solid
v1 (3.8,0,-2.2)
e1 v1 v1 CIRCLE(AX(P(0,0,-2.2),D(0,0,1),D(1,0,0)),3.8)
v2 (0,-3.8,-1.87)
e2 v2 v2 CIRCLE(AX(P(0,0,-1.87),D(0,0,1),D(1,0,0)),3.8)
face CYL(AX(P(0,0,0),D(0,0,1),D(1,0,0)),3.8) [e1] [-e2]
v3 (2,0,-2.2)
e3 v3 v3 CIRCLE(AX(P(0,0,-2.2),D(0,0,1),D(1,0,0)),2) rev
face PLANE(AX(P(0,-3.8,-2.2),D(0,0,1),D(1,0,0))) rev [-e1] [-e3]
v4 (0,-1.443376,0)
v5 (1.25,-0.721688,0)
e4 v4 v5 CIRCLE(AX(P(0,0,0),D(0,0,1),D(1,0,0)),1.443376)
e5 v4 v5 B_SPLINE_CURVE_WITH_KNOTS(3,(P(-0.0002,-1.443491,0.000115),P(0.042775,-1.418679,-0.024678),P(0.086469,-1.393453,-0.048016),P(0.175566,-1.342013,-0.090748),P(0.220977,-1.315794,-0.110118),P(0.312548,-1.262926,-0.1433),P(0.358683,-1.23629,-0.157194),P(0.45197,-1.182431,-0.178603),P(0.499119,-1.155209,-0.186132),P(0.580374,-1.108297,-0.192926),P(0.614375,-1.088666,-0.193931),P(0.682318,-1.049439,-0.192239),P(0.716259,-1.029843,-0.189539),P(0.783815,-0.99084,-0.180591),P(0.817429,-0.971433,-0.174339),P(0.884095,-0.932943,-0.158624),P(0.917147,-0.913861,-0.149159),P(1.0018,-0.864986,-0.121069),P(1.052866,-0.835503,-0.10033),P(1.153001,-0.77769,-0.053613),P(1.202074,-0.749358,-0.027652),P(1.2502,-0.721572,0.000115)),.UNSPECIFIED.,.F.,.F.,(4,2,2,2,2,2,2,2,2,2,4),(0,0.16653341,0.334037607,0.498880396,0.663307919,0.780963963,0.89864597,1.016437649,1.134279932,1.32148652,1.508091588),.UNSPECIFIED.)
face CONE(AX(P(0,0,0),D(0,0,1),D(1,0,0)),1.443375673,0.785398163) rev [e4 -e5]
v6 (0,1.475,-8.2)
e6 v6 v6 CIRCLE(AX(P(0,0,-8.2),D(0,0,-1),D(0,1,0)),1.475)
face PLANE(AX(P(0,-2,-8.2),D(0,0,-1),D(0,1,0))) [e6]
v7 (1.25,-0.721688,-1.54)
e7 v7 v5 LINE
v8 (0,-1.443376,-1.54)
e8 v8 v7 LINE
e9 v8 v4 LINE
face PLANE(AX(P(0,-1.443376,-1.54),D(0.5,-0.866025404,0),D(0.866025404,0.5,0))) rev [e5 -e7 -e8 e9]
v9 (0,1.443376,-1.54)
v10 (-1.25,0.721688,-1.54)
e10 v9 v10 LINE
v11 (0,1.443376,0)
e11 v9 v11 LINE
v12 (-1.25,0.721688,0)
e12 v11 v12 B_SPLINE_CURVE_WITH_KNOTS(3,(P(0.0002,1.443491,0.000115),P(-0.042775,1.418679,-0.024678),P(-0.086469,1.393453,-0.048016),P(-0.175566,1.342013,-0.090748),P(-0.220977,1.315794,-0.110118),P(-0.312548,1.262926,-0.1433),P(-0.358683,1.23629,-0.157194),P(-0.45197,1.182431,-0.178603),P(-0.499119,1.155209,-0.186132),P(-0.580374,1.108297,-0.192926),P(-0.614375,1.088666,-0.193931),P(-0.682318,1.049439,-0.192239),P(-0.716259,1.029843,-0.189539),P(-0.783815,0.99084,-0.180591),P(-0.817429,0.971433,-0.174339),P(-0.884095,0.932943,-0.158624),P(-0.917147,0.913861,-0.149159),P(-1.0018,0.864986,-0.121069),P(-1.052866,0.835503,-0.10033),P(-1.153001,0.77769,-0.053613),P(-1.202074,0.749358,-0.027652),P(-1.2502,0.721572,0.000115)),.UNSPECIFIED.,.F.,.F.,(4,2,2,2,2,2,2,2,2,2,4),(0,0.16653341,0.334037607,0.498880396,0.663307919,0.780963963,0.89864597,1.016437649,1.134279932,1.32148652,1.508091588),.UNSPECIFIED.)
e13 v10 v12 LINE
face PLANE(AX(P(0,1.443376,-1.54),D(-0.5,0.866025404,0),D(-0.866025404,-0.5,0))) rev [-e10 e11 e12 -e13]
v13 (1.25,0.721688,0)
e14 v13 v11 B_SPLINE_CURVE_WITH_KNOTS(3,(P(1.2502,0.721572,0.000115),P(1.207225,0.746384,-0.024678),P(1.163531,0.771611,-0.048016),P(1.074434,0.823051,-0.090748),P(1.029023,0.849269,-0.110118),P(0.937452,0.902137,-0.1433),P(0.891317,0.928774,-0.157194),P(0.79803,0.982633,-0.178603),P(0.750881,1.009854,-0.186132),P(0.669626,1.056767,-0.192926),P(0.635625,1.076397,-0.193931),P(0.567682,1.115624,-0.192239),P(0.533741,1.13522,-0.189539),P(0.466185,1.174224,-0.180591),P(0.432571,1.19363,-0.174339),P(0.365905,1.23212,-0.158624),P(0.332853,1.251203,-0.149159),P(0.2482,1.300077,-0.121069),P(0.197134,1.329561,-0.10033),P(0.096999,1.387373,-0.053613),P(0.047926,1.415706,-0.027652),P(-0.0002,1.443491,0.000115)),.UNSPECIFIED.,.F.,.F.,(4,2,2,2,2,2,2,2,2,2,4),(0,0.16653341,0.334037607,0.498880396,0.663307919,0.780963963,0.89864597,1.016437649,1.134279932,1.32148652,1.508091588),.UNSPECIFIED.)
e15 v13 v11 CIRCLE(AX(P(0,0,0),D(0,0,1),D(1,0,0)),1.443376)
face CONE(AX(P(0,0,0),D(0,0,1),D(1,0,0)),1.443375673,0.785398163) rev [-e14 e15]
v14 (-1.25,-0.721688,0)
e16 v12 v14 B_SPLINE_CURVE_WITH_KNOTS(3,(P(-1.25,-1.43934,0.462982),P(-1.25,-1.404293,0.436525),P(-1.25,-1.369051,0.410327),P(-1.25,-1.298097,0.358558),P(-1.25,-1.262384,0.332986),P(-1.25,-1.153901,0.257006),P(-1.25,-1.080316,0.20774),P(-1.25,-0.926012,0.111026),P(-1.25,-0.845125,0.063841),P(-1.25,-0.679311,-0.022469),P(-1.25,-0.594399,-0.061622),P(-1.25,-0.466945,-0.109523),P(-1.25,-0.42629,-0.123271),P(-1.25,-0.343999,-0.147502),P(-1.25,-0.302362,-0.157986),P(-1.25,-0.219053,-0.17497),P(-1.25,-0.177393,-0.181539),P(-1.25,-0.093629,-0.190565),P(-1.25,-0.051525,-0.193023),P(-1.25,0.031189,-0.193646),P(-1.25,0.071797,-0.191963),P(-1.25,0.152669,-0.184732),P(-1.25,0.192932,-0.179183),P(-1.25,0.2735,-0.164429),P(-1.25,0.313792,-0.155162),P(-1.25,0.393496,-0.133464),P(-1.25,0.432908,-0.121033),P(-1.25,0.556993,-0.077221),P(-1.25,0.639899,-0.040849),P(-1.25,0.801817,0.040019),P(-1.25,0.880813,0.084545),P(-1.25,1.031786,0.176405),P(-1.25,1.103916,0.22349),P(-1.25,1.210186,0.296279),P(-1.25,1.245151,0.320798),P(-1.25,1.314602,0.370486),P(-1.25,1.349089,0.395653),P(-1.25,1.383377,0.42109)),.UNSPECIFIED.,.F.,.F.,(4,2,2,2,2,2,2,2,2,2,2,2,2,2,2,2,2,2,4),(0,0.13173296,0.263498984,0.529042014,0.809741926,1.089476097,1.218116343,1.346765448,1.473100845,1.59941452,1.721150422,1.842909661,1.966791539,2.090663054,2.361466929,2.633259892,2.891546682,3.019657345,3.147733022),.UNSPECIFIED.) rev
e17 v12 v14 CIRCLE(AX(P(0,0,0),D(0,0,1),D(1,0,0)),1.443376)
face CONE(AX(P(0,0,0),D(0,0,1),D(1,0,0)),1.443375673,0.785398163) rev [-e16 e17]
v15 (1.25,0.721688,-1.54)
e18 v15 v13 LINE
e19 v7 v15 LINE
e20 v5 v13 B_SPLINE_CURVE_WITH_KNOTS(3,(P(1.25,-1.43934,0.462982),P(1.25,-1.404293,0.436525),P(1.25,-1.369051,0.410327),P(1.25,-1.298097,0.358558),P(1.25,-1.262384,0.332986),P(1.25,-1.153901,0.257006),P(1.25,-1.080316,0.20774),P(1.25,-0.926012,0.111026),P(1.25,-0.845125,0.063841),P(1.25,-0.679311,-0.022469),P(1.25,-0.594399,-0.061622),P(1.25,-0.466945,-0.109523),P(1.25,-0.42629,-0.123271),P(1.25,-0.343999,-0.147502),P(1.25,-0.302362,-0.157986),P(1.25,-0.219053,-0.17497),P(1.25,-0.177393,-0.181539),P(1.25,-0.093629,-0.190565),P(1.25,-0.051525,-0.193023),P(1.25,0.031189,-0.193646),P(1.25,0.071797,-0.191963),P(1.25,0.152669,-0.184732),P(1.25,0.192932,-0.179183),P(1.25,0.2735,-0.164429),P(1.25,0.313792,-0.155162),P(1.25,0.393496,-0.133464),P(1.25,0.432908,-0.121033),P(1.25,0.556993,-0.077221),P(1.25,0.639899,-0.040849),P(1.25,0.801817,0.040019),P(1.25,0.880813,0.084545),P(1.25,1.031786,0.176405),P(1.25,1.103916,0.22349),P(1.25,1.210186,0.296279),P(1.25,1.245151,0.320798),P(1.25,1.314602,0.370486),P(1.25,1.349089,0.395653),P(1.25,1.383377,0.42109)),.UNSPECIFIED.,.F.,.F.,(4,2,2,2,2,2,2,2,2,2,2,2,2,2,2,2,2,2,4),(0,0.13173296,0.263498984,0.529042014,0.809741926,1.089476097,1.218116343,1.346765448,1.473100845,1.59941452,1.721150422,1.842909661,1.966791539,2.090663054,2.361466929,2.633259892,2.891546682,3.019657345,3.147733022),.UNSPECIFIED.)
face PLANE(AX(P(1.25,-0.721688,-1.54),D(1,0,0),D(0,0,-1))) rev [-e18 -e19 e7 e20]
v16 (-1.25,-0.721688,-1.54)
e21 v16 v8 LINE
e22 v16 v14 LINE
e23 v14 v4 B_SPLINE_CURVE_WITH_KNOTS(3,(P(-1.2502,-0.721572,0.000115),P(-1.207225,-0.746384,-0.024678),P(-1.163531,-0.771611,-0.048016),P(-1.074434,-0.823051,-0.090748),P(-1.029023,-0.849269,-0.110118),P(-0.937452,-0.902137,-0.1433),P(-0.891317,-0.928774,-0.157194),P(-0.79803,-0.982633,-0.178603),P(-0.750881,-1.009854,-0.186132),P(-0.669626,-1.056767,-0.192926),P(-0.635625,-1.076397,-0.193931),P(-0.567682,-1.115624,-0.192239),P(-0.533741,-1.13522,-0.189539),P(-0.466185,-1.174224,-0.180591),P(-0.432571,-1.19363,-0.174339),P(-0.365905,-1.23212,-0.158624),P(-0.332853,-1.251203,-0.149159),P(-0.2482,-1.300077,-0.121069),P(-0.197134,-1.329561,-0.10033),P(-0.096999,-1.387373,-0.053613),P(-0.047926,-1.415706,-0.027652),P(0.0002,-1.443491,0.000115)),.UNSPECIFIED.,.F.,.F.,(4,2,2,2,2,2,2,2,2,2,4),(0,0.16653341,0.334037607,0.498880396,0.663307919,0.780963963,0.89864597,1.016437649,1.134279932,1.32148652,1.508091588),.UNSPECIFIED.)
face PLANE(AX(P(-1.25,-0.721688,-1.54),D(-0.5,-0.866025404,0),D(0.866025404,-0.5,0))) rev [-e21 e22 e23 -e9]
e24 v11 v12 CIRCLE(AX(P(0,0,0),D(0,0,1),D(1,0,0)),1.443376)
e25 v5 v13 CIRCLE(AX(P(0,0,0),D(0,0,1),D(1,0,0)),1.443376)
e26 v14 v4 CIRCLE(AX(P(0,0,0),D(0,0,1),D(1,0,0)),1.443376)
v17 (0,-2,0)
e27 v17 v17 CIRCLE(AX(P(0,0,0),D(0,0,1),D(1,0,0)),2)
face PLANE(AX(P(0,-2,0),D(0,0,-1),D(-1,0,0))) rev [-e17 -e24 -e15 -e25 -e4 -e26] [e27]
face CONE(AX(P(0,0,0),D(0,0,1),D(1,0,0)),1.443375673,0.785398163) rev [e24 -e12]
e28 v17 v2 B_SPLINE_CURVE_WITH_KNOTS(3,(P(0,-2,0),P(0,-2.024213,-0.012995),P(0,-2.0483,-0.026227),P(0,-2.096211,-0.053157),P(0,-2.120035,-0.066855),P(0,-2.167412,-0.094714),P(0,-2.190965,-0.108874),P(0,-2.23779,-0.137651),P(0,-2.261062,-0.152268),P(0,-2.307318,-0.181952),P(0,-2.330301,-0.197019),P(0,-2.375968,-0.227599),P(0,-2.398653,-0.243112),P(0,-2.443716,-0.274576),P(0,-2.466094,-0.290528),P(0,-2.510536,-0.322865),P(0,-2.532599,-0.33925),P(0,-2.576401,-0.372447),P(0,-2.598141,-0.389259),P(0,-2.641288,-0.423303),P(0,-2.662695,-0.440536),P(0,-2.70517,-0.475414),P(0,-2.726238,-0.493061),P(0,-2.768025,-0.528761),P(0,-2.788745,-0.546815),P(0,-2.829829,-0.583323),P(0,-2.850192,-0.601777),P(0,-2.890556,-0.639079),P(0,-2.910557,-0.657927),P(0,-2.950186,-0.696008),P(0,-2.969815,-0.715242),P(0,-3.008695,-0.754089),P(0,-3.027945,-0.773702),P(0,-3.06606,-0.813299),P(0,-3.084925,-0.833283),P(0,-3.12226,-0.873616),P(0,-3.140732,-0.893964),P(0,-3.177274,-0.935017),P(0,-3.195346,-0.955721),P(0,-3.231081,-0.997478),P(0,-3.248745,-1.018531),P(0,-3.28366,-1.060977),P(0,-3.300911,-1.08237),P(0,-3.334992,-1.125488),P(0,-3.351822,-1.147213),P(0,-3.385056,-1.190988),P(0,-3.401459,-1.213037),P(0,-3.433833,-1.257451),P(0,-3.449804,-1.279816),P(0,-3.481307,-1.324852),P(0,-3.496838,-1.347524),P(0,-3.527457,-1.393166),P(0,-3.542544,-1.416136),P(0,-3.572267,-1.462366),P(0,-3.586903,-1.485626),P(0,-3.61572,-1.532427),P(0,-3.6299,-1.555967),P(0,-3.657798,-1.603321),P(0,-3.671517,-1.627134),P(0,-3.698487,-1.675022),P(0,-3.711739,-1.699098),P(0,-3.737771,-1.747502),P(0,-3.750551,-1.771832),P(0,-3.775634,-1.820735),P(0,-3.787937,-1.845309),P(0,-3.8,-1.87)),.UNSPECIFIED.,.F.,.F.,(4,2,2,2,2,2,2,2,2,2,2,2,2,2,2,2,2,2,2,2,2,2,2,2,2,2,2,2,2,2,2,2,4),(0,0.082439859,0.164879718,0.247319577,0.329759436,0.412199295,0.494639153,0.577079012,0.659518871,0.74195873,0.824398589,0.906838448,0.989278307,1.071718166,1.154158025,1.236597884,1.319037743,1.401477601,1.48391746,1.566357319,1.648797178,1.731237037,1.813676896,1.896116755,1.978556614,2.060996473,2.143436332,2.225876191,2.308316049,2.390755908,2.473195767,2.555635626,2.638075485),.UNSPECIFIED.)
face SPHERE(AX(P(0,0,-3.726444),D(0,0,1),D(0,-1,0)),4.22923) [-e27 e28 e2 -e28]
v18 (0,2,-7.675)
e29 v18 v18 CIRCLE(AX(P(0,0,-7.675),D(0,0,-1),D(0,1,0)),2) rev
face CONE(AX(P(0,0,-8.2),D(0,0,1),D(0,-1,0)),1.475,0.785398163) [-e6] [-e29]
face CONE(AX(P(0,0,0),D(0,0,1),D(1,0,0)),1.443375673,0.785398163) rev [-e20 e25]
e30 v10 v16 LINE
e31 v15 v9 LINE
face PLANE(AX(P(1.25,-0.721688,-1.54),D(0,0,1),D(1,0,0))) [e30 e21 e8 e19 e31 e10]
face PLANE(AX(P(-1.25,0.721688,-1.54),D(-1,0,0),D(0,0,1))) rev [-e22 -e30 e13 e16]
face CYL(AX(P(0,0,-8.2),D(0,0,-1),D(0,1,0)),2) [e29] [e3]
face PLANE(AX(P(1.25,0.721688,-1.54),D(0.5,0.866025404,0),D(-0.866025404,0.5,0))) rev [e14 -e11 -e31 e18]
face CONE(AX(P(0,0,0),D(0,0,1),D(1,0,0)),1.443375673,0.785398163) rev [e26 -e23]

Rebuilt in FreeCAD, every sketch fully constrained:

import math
import FreeCAD as App
import Part
import Sketcher
Q = App.Units.Quantity


def edges_at(feature, points):
    """Names of the edges that pass closest to the given points."""
    edges = feature.Shape.Edges
    near = lambda p: min(range(len(edges)), key=lambda i: edges[i].distToShape(Part.Vertex(*p))[0])
    return sorted({f"Edge{near(p) + 1}" for p in points})

doc = App.newDocument("Part")
body = doc.addObject("PartDesign::Body", "Body")

# Sketch on YZ plane
sketch1 = doc.addObject("Sketcher::SketchObject", "Sketch")
body.addObject(sketch1)
sketch1.AttachmentSupport = (doc.YZ_Plane, [""])
sketch1.MapMode = "FlatFace"
sketch1.addGeometry(Part.LineSegment(App.Vector(2, -2.2, 0), App.Vector(0, -2.2, 0)), False)
sketch1.addGeometry(Part.LineSegment(App.Vector(0, -2.2, 0), App.Vector(0, -8.2, 0)), False)
sketch1.addGeometry(Part.LineSegment(App.Vector(0, -8.2, 0), App.Vector(2, -8.2, 0)), False)
sketch1.addGeometry(Part.LineSegment(App.Vector(2, -8.2, 0), App.Vector(2, -2.2, 0)), False)
sketch1.addConstraint(Sketcher.Constraint("Coincident", 0, 2, 1, 1))
sketch1.addConstraint(Sketcher.Constraint("Coincident", 1, 2, 2, 1))
sketch1.addConstraint(Sketcher.Constraint("Coincident", 2, 2, 3, 1))
sketch1.addConstraint(Sketcher.Constraint("Coincident", 3, 2, 0, 1))
sketch1.addConstraint(Sketcher.Constraint("Horizontal", 0))
sketch1.addConstraint(Sketcher.Constraint("Vertical", 1))
sketch1.addConstraint(Sketcher.Constraint("Horizontal", 2))
sketch1.addConstraint(Sketcher.Constraint("Vertical", 3))
sketch1.addConstraint(Sketcher.Constraint("PointOnObject", 0, 2, -2))
sketch1.addConstraint(Sketcher.Constraint("DistanceX", 0, 2, 0, 1, Q("2 mm")))
sketch1.addConstraint(Sketcher.Constraint("DistanceY", 1, 2, 1, 1, Q("6 mm")))
sketch1.addConstraint(Sketcher.Constraint("DistanceY", 0, 2, -1, 1, Q("2.2 mm")))
revolution = doc.addObject("PartDesign::Revolution", "Revolution")
body.addObject(revolution)
revolution.Profile = sketch1
revolution.ReferenceAxis = (sketch1, ["V_Axis"])
revolution.Angle = 360
doc.recompute()

chamfer = doc.addObject("PartDesign::Chamfer", "Chamfer")
body.addObject(chamfer)
chamfer.Base = (revolution, edges_at(revolution, [(0, -2, -8.2)]))
chamfer.Size = 0.525

# Sketch on YZ plane
sketch2 = doc.addObject("Sketcher::SketchObject", "Sketch001")
body.addObject(sketch2)
sketch2.AttachmentSupport = (doc.YZ_Plane, [""])
sketch2.MapMode = "FlatFace"
sketch2.addGeometry(Part.LineSegment(App.Vector(3.8, -2.2, 0), App.Vector(3.8, -1.87, 0)), False)
sketch2.addGeometry(Part.ArcOfCircle(Part.Circle(App.Vector(0, -3.726444, 0), App.Vector(0, 0, 1), 4.22923), math.radians(26.03726), math.radians(61.777335)), False)
sketch2.addGeometry(Part.LineSegment(App.Vector(2, 0, 0), App.Vector(0, 0, 0)), False)
sketch2.addGeometry(Part.LineSegment(App.Vector(0, 0, 0), App.Vector(0, -2.2, 0)), False)
sketch2.addGeometry(Part.LineSegment(App.Vector(0, -2.2, 0), App.Vector(3.8, -2.2, 0)), False)
sketch2.addConstraint(Sketcher.Constraint("Coincident", 0, 2, 1, 1))
sketch2.addConstraint(Sketcher.Constraint("Coincident", 1, 2, 2, 1))
sketch2.addConstraint(Sketcher.Constraint("Coincident", 2, 2, 3, 1))
sketch2.addConstraint(Sketcher.Constraint("Coincident", 3, 2, 4, 1))
sketch2.addConstraint(Sketcher.Constraint("Coincident", 4, 2, 0, 1))
sketch2.addConstraint(Sketcher.Constraint("Vertical", 0))
sketch2.addConstraint(Sketcher.Constraint("Horizontal", 2))
sketch2.addConstraint(Sketcher.Constraint("Vertical", 3))
sketch2.addConstraint(Sketcher.Constraint("Horizontal", 4))
sketch2.addConstraint(Sketcher.Constraint("Coincident", 2, 2, -1, 1))
sketch2.addConstraint(Sketcher.Constraint("PointOnObject", 1, 3, -2))
sketch2.addConstraint(Sketcher.Constraint("DistanceX", 2, 2, 2, 1, Q("2 mm")))
sketch2.addConstraint(Sketcher.Constraint("DistanceX", 4, 1, 4, 2, Q("3.8 mm")))
sketch2.addConstraint(Sketcher.Constraint("DistanceY", 3, 2, 3, 1, Q("2.2 mm")))
sketch2.addConstraint(Sketcher.Constraint("DistanceY", 0, 1, 0, 2, Q("0.33 mm")))
revolution2 = doc.addObject("PartDesign::Revolution", "Revolution001")
body.addObject(revolution2)
revolution2.Profile = sketch2
revolution2.ReferenceAxis = (sketch2, ["V_Axis"])
revolution2.Angle = 360

# Sketch on XY plane
sketch3 = doc.addObject("Sketcher::SketchObject", "Sketch002")
body.addObject(sketch3)
sketch3.AttachmentSupport = (doc.XY_Plane, [""])
sketch3.MapMode = "FlatFace"
sketch3.addGeometry(Part.LineSegment(App.Vector(1.25, -0.721688, 0), App.Vector(1.25, 0.721688, 0)), False)
sketch3.addGeometry(Part.LineSegment(App.Vector(1.25, 0.721688, 0), App.Vector(0, 1.443376, 0)), False)
sketch3.addGeometry(Part.LineSegment(App.Vector(0, 1.443376, 0), App.Vector(-1.25, 0.721688, 0)), False)
sketch3.addGeometry(Part.LineSegment(App.Vector(-1.25, 0.721688, 0), App.Vector(-1.25, -0.721688, 0)), False)
sketch3.addGeometry(Part.LineSegment(App.Vector(-1.25, -0.721688, 0), App.Vector(0, -1.443376, 0)), False)
sketch3.addGeometry(Part.LineSegment(App.Vector(0, -1.443376, 0), App.Vector(1.25, -0.721688, 0)), False)
sketch3.addConstraint(Sketcher.Constraint("Coincident", 0, 2, 1, 1))
sketch3.addConstraint(Sketcher.Constraint("Coincident", 1, 2, 2, 1))
sketch3.addConstraint(Sketcher.Constraint("Coincident", 2, 2, 3, 1))
sketch3.addConstraint(Sketcher.Constraint("Coincident", 3, 2, 4, 1))
sketch3.addConstraint(Sketcher.Constraint("Coincident", 4, 2, 5, 1))
sketch3.addConstraint(Sketcher.Constraint("Coincident", 5, 2, 0, 1))
sketch3.addConstraint(Sketcher.Constraint("Vertical", 0))
sketch3.addConstraint(Sketcher.Constraint("Vertical", 3))
sketch3.addConstraint(Sketcher.Constraint("Symmetric", 0, 2, 3, 2, -1, 1))
sketch3.addConstraint(Sketcher.Constraint("Symmetric", 1, 2, 4, 2, -1, 1))
sketch3.addConstraint(Sketcher.Constraint("PointOnObject", 1, 2, -2))
sketch3.addConstraint(Sketcher.Constraint("Parallel", 2, 5))
sketch3.addConstraint(Sketcher.Constraint("Horizontal", 0, 2, 2, 2))
sketch3.addConstraint(Sketcher.Constraint("Angle", 1, Q("150 deg")))
sketch3.addConstraint(Sketcher.Constraint("DistanceX", 2, 2, 0, 2, Q("2.5 mm")))
sketch3.addConstraint(Sketcher.Constraint("DistanceY", 0, 1, 0, 2, Q("1.443376 mm")))
pocket1 = doc.addObject("PartDesign::Pocket", "Pocket")
body.addObject(pocket1)
pocket1.Profile = sketch3
pocket1.Length = 1.54

# Sketch on YZ plane
sketch4 = doc.addObject("Sketcher::SketchObject", "Sketch003")
body.addObject(sketch4)
sketch4.AttachmentSupport = (doc.YZ_Plane, [""])
sketch4.MapMode = "FlatFace"
sketch4.addGeometry(Part.LineSegment(App.Vector(0, 0, 0), App.Vector(-1.443376, 0, 0)), False)
sketch4.addGeometry(Part.LineSegment(App.Vector(-1.443376, 0, 0), App.Vector(0, -1.443376, 0)), False)
sketch4.addGeometry(Part.LineSegment(App.Vector(0, -1.443376, 0), App.Vector(0, 0, 0)), False)
sketch4.addConstraint(Sketcher.Constraint("Coincident", 0, 2, 1, 1))
sketch4.addConstraint(Sketcher.Constraint("Coincident", 1, 2, 2, 1))
sketch4.addConstraint(Sketcher.Constraint("Coincident", 2, 2, 0, 1))
sketch4.addConstraint(Sketcher.Constraint("Horizontal", 0))
sketch4.addConstraint(Sketcher.Constraint("Vertical", 2))
sketch4.addConstraint(Sketcher.Constraint("Coincident", 2, 2, -1, 1))
sketch4.addConstraint(Sketcher.Constraint("Equal", 0, 2))
sketch4.addConstraint(Sketcher.Constraint("Distance", 1, Q("2.041241 mm")))
groove = doc.addObject("PartDesign::Groove", "Groove")
body.addObject(groove)
groove.Profile = sketch4
groove.ReferenceAxis = (sketch4, ["V_Axis"])
groove.Angle = 360

doc.recompute()
